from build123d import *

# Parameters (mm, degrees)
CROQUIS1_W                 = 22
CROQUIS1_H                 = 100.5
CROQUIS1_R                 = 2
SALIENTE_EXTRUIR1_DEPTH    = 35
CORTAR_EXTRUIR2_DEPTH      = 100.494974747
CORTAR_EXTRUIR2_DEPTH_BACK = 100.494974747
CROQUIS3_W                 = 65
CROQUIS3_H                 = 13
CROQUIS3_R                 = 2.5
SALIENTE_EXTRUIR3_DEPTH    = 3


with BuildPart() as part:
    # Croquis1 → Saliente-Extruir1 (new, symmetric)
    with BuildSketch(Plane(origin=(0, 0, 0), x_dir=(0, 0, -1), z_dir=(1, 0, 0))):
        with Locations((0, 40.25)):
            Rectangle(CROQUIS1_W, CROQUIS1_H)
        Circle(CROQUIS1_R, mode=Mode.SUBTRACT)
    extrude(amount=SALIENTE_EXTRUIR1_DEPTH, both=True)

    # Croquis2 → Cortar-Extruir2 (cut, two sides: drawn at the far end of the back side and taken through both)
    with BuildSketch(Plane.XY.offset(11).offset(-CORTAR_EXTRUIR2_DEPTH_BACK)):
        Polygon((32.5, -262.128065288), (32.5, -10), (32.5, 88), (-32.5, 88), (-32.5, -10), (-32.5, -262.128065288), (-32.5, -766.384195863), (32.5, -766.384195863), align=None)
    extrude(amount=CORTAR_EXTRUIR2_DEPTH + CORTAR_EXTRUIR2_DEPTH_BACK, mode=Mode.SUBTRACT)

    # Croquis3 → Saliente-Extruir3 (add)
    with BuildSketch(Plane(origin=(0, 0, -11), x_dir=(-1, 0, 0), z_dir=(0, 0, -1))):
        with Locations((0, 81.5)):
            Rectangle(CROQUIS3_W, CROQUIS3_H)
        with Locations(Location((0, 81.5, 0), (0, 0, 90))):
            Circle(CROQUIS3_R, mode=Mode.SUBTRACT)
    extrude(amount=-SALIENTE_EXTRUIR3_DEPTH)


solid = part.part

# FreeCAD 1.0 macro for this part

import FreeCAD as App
import Part
import Sketcher


def add_polygon(sketch, points):
    """Adds a closed chain of lines whose ends are joined by coincident constraints."""
    first, n = sketch.GeometryCount, len(points)
    for a, b in zip(points, points[1:] + points[:1]):
        sketch.addGeometry(Part.LineSegment(App.Vector(*a, 0), App.Vector(*b, 0)), False)
    for i in range(n):
        sketch.addConstraint(Sketcher.Constraint("Coincident", first + i, 2, first + (i + 1) % n, 1))

doc = App.newDocument("Part")
body = doc.addObject("PartDesign::Body", "Body")

# Sketch on YZ plane
sketch1 = body.newObject("Sketcher::SketchObject", "Sketch")
sketch1.AttachmentSupport = (doc.getObject("YZ_Plane"), [""])
sketch1.MapMode = "FlatFace"
add_polygon(sketch1, [(90.5, 11), (-10, 11), (-10, -11), (90.5, -11)])  # lines 0-3
sketch1.addGeometry(Part.Circle(App.Vector(0, 0, 0), App.Vector(0, 0, 1), 2), False)  # 4
sketch1.addConstraint(Sketcher.Constraint("Horizontal", 0))
sketch1.addConstraint(Sketcher.Constraint("Vertical", 1))
sketch1.addConstraint(Sketcher.Constraint("Horizontal", 2))
sketch1.addConstraint(Sketcher.Constraint("Vertical", 3))
sketch1.addConstraint(Sketcher.Constraint("Coincident", 4, 3, -1, 1))
sketch1.addConstraint(Sketcher.Constraint("Diameter", 4, 4.0))
sketch1.addConstraint(Sketcher.Constraint("DistanceY", 1, 2, 1, 1, 22.0))
sketch1.addConstraint(Sketcher.Constraint("DistanceX", 0, 2, 0, 1, 100.5))
sketch1.addConstraint(Sketcher.Constraint("DistanceX", 0, 2, -1, 1, 10.0))
sketch1.addConstraint(Sketcher.Constraint("DistanceY", -1, 1, 0, 2, 11.0))
pad1 = body.newObject("PartDesign::Pad", "Pad")
pad1.Profile = sketch1
pad1.Length = 70
pad1.Midplane = True

# Sketch on XY plane
sketch2 = body.newObject("Sketcher::SketchObject", "Sketch001")
sketch2.AttachmentSupport = (doc.getObject("XY_Plane"), [""])
sketch2.MapMode = "FlatFace"
sketch2.AttachmentOffset = App.Placement(App.Vector(0, 0, 11), App.Rotation())
add_polygon(sketch2, [(32, 88), (-32, 88), (-32, -766), (32, -766)])  # lines 0-3
sketch2.addConstraint(Sketcher.Constraint("Horizontal", 0))
sketch2.addConstraint(Sketcher.Constraint("Vertical", 1))
sketch2.addConstraint(Sketcher.Constraint("Horizontal", 2))
sketch2.addConstraint(Sketcher.Constraint("Vertical", 3))
sketch2.addConstraint(Sketcher.Constraint("DistanceX", 0, 2, 0, 1, 65.0))
sketch2.addConstraint(Sketcher.Constraint("DistanceY", -1, 1, 0, 2, 88.0))
sketch2.addConstraint(Sketcher.Constraint("DistanceX", 0, 2, -1, 1, 32.5))
sketch2.addConstraint(Sketcher.Constraint("DistanceY", 1, 2, 1, 1, 854.384196))
pocket1 = body.newObject("PartDesign::Pocket", "Pocket")
pocket1.Profile = sketch2
pocket1.Type = "ThroughAll"
pocket1.Midplane = True

# Sketch on XY plane
sketch3 = body.newObject("Sketcher::SketchObject", "Sketch002")
sketch3.AttachmentSupport = (doc.getObject("XY_Plane"), [""])
sketch3.MapMode = "FlatFace"
sketch3.AttachmentOffset = App.Placement(App.Vector(0, 0, -11), App.Rotation())
add_polygon(sketch3, [(32.5, 88), (32.5, 75), (-32.5, 75), (-32.5, 88)])  # lines 0-3
sketch3.addGeometry(Part.Circle(App.Vector(0, 81.5, 0), App.Vector(0, 0, 1), 2.5), False)  # 4
sketch3.addConstraint(Sketcher.Constraint("Vertical", 0))
sketch3.addConstraint(Sketcher.Constraint("Horizontal", 1))
sketch3.addConstraint(Sketcher.Constraint("Vertical", 2))
sketch3.addConstraint(Sketcher.Constraint("Horizontal", 3))
sketch3.addConstraint(Sketcher.Constraint("PointOnObject", 4, 3, -2))
sketch3.addConstraint(Sketcher.Constraint("Diameter", 4, 5.0))
sketch3.addConstraint(Sketcher.Constraint("DistanceX", 1, 2, 1, 1, 65.0))
sketch3.addConstraint(Sketcher.Constraint("DistanceY", 0, 2, 0, 1, 13.0))
sketch3.addConstraint(Sketcher.Constraint("DistanceY", -1, 1, 0, 2, 75.0))
sketch3.addConstraint(Sketcher.Constraint("DistanceY", -1, 1, 4, 3, 81.5))
sketch3.addConstraint(Sketcher.Constraint("DistanceX", -1, 1, 0, 2, 32.5))
pad2 = body.newObject("PartDesign::Pad", "Pad001")
pad2.Profile = sketch3
pad2.Length = 3

doc.recompute()
